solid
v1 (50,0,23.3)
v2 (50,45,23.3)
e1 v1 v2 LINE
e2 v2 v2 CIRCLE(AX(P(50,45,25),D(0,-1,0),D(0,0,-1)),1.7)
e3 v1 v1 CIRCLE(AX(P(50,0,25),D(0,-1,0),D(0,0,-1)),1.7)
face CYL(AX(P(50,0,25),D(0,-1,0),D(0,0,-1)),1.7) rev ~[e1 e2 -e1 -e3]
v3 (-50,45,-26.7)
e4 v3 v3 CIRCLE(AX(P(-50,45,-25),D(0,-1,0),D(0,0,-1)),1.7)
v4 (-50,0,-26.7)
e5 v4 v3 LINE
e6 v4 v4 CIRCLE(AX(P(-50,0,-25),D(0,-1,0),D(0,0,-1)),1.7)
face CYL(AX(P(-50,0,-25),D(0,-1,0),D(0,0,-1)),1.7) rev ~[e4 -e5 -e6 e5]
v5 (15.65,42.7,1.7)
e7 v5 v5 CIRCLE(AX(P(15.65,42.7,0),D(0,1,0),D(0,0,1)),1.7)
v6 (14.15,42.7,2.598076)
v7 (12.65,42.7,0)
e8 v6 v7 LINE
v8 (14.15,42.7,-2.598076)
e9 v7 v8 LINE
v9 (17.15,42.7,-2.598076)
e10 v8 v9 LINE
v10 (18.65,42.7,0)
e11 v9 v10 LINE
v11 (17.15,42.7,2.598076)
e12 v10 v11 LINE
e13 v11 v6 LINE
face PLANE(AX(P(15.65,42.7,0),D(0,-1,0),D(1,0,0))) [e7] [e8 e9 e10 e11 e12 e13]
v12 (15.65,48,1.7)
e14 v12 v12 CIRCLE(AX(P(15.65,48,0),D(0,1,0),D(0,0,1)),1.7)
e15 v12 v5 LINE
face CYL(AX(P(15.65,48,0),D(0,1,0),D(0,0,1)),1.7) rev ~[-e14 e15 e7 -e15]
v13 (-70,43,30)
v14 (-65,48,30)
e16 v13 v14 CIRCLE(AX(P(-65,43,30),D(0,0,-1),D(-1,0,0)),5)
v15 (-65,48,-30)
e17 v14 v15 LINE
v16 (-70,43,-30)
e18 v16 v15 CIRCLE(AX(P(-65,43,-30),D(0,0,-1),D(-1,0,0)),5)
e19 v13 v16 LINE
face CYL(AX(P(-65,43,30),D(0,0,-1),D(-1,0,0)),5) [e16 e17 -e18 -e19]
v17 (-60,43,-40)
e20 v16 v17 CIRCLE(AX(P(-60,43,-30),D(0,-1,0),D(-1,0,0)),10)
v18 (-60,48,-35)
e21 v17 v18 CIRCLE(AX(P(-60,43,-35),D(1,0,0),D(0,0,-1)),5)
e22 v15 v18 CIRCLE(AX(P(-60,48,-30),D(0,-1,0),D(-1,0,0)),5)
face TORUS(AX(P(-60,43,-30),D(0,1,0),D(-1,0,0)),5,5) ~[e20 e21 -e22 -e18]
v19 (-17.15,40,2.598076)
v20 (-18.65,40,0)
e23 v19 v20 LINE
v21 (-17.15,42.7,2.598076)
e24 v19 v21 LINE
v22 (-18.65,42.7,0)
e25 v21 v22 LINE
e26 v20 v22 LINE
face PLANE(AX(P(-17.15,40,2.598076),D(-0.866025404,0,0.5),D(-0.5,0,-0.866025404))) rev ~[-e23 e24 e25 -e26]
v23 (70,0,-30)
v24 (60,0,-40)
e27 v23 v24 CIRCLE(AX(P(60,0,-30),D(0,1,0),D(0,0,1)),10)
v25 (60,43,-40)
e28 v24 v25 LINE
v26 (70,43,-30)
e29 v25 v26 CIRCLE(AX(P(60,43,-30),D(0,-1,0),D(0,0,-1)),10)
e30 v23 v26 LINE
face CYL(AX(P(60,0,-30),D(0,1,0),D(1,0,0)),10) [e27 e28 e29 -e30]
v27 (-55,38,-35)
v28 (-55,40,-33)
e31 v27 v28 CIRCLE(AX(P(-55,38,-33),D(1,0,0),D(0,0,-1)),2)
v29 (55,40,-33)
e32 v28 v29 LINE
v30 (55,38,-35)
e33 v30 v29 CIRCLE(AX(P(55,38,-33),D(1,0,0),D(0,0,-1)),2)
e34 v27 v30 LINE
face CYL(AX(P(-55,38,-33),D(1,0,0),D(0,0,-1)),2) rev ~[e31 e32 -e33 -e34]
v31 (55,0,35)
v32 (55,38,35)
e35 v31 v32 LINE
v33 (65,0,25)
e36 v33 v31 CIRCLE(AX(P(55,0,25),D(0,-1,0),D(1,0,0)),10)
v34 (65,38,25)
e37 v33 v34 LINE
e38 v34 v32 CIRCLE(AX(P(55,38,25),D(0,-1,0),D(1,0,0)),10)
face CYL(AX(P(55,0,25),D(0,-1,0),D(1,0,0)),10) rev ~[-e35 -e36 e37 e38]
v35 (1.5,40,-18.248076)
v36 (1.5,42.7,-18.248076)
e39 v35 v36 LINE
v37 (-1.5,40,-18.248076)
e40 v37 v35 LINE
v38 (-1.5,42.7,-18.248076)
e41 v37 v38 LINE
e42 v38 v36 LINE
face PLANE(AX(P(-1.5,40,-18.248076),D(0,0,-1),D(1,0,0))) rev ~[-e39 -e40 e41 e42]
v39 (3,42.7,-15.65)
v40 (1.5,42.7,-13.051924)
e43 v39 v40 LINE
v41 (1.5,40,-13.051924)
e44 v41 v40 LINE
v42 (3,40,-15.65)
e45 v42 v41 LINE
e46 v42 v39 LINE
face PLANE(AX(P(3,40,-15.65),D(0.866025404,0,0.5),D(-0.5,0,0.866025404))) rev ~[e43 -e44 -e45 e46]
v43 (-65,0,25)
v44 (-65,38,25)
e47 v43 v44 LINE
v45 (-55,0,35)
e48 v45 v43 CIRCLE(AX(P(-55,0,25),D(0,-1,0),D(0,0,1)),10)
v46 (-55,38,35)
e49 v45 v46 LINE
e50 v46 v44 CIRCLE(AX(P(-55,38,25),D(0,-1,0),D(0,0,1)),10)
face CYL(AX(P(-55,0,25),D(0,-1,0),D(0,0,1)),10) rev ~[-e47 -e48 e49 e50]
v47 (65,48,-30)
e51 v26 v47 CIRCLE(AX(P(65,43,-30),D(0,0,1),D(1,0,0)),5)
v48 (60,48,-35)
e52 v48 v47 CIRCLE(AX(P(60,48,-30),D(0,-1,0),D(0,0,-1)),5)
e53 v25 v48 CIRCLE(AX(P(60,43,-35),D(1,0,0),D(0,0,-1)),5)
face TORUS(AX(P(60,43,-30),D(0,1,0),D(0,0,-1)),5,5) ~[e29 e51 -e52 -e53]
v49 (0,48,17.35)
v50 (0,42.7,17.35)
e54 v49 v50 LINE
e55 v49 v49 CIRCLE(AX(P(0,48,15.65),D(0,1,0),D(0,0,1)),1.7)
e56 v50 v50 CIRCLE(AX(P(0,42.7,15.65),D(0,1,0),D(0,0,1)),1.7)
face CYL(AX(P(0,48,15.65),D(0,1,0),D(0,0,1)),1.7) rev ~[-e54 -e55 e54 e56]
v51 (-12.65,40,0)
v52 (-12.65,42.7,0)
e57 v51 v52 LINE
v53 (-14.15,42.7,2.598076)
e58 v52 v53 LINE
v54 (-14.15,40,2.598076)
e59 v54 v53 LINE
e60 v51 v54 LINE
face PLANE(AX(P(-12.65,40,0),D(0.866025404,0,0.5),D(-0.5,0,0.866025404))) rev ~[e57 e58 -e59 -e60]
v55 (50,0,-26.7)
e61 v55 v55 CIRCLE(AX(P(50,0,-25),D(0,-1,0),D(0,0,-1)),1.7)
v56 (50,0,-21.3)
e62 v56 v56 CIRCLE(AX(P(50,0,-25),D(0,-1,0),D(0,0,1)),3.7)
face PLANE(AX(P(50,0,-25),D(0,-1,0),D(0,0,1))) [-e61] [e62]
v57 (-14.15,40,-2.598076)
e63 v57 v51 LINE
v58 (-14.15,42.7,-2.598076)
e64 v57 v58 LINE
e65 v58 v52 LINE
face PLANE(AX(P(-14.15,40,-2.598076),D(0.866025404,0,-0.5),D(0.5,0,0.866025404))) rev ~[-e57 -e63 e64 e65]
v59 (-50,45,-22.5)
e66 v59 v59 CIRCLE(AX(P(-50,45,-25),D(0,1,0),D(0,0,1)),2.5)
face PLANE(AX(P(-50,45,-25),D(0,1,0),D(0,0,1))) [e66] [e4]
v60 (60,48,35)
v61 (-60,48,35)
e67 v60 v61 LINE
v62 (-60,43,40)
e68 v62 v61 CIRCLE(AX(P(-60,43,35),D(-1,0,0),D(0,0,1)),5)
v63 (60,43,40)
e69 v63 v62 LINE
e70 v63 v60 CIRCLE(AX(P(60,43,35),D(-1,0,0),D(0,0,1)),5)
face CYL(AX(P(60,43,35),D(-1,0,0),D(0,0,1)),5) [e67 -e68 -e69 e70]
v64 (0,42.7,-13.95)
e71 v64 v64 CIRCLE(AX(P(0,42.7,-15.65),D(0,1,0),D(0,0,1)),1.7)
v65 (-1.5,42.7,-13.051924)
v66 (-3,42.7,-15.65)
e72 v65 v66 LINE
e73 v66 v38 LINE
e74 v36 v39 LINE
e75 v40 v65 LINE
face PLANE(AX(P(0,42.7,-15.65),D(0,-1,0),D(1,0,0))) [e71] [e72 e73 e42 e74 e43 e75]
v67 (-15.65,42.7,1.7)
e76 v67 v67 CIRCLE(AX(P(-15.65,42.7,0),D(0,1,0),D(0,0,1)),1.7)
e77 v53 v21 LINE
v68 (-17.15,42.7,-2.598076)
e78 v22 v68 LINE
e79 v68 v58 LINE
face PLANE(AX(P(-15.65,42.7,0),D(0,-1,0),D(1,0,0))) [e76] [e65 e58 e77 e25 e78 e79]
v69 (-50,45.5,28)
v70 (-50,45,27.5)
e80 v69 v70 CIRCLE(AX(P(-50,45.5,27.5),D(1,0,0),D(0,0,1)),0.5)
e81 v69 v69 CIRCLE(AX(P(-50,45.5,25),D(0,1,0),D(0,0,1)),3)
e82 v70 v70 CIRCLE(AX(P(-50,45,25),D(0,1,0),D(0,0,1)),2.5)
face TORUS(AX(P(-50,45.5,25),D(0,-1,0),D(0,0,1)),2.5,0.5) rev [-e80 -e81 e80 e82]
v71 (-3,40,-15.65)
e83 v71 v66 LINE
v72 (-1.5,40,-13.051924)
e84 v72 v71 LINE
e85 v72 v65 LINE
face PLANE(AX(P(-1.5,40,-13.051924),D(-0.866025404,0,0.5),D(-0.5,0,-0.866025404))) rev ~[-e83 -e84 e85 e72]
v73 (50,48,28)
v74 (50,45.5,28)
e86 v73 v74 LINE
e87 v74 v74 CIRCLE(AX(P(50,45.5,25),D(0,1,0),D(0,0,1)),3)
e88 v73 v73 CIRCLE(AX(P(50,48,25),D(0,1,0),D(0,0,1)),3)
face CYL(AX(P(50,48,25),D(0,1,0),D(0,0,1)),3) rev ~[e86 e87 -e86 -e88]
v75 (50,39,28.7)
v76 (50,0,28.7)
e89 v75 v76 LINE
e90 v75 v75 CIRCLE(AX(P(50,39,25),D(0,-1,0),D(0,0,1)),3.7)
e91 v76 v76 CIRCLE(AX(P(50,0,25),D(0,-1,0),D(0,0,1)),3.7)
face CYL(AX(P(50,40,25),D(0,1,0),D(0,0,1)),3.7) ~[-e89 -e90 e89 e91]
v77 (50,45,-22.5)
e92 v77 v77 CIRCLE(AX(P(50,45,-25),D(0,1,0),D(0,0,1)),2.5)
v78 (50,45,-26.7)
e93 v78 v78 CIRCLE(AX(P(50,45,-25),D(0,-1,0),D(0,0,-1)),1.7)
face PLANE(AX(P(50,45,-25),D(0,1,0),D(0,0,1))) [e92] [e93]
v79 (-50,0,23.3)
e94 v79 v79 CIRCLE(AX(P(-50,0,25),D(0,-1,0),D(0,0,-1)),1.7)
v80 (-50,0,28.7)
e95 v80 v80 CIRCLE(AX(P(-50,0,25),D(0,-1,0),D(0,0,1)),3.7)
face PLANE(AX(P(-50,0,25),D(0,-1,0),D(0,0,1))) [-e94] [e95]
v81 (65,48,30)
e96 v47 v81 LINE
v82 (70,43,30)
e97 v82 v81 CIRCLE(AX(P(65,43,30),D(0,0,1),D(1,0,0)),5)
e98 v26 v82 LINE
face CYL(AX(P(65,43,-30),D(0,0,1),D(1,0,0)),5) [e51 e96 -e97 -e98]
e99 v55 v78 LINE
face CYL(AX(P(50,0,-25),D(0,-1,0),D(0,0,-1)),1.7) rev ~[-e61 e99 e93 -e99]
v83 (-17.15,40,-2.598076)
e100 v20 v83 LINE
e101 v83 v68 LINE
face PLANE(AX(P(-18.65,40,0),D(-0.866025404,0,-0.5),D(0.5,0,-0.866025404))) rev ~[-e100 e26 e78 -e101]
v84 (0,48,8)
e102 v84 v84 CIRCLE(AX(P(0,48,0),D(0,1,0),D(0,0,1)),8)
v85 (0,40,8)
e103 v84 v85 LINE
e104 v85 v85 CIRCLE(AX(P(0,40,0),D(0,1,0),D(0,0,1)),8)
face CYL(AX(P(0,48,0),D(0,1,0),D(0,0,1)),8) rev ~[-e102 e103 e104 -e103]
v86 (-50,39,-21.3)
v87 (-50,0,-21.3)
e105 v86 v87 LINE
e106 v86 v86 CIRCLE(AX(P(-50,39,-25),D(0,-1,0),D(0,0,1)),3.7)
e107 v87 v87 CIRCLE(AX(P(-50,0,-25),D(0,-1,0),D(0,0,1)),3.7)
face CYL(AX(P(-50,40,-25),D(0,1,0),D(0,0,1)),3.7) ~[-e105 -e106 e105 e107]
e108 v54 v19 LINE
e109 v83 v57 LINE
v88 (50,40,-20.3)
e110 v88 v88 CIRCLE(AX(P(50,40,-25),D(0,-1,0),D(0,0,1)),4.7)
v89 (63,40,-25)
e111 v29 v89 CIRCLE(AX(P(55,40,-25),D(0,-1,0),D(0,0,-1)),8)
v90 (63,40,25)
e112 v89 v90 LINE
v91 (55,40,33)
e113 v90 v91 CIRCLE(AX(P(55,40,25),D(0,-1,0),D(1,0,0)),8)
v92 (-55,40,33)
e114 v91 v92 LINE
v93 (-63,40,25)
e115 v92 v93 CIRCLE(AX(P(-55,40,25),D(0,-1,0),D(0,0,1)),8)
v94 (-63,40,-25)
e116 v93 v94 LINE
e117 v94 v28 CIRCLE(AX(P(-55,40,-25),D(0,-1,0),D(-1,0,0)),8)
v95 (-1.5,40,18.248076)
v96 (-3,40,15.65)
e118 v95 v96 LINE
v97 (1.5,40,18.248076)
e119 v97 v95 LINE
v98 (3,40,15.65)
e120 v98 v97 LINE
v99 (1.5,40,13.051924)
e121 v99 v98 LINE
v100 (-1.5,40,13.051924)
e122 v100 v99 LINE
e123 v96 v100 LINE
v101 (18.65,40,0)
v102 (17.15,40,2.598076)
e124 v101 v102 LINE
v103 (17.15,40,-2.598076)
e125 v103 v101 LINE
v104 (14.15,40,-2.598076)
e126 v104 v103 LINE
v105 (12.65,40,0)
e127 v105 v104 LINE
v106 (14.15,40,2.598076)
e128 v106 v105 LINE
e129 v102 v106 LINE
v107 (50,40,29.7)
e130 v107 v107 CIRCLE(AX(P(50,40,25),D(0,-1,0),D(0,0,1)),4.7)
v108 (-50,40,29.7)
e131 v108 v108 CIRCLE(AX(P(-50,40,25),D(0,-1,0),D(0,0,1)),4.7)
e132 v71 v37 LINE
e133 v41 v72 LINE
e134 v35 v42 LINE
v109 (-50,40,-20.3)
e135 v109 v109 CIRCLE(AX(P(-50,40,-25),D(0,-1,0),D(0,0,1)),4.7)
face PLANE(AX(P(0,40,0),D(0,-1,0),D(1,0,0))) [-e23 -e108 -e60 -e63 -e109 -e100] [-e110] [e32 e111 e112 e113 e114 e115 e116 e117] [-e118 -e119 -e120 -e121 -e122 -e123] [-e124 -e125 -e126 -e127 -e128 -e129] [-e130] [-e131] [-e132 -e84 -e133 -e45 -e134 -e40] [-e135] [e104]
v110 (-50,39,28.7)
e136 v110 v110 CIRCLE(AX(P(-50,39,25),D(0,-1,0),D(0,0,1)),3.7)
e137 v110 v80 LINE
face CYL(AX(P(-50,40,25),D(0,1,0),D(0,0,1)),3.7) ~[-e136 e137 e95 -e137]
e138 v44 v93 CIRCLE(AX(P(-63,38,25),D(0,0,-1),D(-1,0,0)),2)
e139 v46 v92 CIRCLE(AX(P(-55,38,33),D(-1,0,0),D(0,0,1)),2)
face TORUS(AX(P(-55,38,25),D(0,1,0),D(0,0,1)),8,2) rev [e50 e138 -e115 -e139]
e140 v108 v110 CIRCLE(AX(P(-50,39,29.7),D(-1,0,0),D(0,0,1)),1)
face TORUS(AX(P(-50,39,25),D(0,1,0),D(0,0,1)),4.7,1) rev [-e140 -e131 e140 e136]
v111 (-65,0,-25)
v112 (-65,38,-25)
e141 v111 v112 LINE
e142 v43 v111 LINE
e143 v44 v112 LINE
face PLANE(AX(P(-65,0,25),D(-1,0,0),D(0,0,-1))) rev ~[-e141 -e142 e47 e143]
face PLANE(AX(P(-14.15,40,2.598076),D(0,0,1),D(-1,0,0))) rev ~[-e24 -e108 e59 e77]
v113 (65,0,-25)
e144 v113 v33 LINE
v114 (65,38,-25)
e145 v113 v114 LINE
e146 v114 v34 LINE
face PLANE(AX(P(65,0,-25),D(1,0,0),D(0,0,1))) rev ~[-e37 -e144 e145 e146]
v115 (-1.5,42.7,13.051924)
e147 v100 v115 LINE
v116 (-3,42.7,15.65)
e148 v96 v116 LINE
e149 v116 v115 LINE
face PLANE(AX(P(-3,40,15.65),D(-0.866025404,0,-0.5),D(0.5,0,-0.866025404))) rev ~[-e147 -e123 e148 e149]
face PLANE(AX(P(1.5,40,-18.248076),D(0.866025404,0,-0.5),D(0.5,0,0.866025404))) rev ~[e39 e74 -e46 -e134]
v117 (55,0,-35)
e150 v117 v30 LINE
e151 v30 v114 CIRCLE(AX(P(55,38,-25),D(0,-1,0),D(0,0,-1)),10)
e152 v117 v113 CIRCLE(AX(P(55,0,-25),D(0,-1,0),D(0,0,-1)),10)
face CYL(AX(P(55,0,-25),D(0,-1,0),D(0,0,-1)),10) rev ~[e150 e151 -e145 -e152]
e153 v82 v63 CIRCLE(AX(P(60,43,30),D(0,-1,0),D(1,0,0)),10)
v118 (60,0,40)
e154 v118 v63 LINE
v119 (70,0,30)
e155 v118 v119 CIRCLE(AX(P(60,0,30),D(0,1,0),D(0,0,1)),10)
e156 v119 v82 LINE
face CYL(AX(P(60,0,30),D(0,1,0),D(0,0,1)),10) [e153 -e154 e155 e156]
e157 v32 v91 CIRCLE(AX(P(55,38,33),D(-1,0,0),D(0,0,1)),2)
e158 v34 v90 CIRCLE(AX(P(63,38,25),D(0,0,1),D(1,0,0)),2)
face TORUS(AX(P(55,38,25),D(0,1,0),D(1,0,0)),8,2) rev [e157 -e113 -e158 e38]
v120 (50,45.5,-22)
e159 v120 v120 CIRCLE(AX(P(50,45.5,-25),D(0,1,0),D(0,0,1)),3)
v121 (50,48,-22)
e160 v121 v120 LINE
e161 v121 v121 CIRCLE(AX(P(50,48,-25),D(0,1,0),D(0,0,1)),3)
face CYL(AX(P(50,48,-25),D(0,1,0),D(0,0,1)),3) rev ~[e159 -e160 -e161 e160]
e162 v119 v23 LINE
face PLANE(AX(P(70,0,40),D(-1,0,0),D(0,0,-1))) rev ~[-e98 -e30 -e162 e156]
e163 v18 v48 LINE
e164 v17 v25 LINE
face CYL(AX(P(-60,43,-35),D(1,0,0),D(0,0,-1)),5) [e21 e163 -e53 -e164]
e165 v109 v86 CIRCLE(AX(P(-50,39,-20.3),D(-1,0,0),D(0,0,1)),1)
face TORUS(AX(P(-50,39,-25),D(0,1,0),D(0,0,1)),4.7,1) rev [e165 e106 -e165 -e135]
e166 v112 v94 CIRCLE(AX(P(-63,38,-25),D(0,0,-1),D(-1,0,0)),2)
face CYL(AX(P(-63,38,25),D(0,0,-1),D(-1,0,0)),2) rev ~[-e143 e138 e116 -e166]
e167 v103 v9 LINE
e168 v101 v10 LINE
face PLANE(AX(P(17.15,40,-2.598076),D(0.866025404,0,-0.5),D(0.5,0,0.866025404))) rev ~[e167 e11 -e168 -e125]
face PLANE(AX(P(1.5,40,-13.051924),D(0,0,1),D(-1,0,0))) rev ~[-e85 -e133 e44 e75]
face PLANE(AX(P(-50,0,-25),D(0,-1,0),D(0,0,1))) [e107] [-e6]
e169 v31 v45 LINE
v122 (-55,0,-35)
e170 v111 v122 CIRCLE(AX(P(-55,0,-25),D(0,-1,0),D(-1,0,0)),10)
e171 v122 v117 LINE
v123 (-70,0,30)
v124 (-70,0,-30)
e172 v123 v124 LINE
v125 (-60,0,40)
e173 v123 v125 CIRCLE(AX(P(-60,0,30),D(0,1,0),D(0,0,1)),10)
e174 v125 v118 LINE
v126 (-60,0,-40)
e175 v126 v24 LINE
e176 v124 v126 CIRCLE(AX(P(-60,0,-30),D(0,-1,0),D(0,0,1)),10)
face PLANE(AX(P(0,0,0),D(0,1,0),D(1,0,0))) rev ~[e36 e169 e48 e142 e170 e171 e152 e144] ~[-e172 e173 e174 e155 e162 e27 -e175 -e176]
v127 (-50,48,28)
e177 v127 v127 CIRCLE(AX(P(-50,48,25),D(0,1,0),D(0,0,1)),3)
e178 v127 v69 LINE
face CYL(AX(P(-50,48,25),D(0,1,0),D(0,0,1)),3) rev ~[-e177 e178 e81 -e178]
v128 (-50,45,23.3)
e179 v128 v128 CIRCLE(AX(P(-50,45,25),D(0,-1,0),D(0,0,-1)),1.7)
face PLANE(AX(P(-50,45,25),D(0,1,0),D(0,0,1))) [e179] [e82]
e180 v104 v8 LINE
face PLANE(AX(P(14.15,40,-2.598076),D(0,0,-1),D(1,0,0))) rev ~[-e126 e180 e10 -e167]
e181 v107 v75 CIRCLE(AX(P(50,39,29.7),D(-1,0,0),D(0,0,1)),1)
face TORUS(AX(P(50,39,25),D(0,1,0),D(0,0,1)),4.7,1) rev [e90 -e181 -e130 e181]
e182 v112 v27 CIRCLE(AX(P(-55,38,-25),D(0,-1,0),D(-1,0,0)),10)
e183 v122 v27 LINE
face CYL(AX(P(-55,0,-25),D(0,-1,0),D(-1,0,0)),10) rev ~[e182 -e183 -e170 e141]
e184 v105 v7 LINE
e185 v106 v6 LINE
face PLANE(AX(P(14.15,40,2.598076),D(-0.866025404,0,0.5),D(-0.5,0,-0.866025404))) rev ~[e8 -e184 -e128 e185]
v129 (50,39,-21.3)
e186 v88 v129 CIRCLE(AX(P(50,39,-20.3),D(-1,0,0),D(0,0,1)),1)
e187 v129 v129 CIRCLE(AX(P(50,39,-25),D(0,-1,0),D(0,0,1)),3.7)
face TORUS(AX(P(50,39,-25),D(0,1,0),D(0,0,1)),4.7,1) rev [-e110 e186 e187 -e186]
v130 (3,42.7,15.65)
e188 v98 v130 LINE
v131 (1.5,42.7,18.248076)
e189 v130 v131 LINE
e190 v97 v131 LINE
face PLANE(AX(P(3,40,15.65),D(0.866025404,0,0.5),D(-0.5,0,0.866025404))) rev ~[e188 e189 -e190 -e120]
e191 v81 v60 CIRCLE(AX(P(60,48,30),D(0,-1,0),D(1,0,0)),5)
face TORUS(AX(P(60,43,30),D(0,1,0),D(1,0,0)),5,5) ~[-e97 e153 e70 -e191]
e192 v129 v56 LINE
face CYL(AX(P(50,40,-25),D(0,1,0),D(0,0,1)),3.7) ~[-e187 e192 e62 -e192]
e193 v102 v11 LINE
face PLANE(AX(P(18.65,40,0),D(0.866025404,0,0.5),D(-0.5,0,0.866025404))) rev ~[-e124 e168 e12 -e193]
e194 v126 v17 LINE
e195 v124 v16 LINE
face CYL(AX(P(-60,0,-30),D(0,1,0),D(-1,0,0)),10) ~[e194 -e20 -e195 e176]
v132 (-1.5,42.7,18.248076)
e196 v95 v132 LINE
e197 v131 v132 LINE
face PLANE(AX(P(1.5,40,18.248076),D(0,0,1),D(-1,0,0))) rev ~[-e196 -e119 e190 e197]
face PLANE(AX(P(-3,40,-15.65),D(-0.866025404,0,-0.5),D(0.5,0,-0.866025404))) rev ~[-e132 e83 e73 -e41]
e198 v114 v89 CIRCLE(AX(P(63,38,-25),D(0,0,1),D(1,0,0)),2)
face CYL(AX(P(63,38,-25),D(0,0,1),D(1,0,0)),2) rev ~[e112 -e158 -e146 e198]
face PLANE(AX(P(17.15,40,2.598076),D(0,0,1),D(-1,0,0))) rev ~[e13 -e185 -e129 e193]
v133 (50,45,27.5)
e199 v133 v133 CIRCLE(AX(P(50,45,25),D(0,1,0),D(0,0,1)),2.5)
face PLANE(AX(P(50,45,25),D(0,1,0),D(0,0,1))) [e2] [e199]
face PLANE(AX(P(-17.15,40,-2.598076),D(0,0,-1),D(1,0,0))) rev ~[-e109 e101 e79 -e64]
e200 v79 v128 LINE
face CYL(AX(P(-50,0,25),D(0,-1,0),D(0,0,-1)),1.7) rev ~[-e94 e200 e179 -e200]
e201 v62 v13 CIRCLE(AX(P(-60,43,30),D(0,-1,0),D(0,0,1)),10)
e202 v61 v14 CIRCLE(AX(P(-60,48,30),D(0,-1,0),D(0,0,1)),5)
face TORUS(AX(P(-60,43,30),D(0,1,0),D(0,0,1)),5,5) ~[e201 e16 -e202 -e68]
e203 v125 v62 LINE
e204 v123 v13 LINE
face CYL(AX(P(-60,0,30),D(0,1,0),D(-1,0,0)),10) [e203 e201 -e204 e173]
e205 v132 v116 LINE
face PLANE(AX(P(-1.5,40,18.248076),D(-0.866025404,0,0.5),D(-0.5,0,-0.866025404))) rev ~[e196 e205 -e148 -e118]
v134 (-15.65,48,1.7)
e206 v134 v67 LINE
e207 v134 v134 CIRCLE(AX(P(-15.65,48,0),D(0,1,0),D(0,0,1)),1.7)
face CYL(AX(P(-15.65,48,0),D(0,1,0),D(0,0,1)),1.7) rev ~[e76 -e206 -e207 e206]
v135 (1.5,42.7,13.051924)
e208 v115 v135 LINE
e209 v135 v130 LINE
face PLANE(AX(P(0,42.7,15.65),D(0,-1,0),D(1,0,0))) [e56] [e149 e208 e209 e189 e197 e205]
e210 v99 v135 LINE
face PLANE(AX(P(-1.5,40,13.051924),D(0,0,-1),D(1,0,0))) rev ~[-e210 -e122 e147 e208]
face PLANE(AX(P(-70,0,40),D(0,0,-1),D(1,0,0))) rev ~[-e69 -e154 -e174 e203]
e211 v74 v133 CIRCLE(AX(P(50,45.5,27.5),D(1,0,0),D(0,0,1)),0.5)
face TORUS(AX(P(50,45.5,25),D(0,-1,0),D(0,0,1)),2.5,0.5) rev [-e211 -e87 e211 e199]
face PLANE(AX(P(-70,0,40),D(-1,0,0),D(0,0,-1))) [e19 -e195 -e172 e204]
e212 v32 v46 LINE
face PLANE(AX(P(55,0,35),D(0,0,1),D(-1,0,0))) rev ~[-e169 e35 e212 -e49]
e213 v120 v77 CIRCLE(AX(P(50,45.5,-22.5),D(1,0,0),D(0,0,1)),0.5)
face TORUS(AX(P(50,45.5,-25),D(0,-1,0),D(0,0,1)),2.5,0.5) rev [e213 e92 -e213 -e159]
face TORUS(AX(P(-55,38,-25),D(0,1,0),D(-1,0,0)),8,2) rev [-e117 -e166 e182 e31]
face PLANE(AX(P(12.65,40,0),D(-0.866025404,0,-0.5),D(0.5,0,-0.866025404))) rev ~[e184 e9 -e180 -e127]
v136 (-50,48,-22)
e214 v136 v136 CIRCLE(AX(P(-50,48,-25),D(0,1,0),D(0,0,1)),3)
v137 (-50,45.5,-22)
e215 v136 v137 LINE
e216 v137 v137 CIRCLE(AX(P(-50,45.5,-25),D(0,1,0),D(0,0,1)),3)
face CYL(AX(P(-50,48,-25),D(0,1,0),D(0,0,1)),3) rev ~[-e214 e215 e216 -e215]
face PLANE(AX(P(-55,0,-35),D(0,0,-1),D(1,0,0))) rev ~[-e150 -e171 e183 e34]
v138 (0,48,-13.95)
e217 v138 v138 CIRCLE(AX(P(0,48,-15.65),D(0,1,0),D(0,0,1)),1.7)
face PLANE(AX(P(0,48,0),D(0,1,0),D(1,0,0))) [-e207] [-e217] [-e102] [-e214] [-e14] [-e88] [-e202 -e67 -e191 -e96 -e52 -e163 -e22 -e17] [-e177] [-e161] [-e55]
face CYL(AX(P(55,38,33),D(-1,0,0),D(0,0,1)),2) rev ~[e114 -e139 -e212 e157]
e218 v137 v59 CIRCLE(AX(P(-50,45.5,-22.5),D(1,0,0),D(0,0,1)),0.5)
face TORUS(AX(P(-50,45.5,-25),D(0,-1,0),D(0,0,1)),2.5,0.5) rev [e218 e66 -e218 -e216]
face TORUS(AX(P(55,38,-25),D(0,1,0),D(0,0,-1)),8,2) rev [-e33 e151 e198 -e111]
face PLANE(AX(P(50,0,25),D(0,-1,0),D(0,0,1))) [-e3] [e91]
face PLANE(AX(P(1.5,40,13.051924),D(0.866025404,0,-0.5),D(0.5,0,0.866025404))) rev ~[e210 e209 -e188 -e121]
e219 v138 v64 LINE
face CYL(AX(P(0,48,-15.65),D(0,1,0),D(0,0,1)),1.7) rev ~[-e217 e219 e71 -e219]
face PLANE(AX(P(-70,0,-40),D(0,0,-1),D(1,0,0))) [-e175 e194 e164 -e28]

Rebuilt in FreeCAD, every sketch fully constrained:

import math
import FreeCAD as App
import Part
import Sketcher
Q = App.Units.Quantity


def edges_at(feature, points):
    """Names of the edges that pass closest to the given points."""
    edges = feature.Shape.Edges
    near = lambda p: min(range(len(edges)), key=lambda i: edges[i].distToShape(Part.Vertex(*p))[0])
    return sorted({f"Edge{near(p) + 1}" for p in points})

doc = App.newDocument("Part")
params = doc.addObject("Spreadsheet::Sheet", "Params")
for row, (alias, value) in enumerate([
    ("sketch1_width", "140 mm"),
    ("sketch1_height", "80 mm"),
    ("pad1_length", "48 mm"),
    ("fillet_radius", "10 mm"),
    ("fillet2_radius", "5 mm"),
    ("sketch2_radius", "10 mm"),
    ("sketch2_width", "110 mm"),
    ("sketch2_height", "50 mm"),
    ("pocket1_length", "40 mm"),
    ("sketch3_diameter", "7.4 mm"),
    ("pad2_length", "40 mm"),
    ("sketch4_diameter", "3.4 mm"),
    ("sketch5_diameter", "6 mm"),
    ("pocket3_length", "3 mm"),
    ("fillet3_radius", "0.5 mm"),
    ("fillet4_radius", "2 mm"),
    ("fillet5_radius", "1 mm"),
    ("sketch6_diameter", "16 mm"),
    ("sketch7_diameter", "3.4 mm"),
    ("sketch8_width", "3 mm"),
    ("sketch8_length", "3 mm"),
    ("pocket6_length", "2.7 mm"),
], start=1):
    params.set(f"A{row}", alias)
    params.set(f"B{row}", "=" + value)
    params.setAlias(f"B{row}", alias)

body = doc.addObject("PartDesign::Body", "Body")

# Sketch on XZ plane
sketch1 = doc.addObject("Sketcher::SketchObject", "Sketch")
body.addObject(sketch1)
sketch1.AttachmentSupport = (doc.XZ_Plane, [""])
sketch1.MapMode = "FlatFace"
sketch1.addGeometry(Part.LineSegment(App.Vector(-70, -40, 0), App.Vector(-70, 40, 0)), False)
sketch1.addGeometry(Part.LineSegment(App.Vector(-70, 40, 0), App.Vector(70, 40, 0)), False)
sketch1.addGeometry(Part.LineSegment(App.Vector(70, 40, 0), App.Vector(70, -40, 0)), False)
sketch1.addGeometry(Part.LineSegment(App.Vector(70, -40, 0), App.Vector(-70, -40, 0)), False)
sketch1.addConstraint(Sketcher.Constraint("Coincident", 0, 2, 1, 1))
sketch1.addConstraint(Sketcher.Constraint("Coincident", 1, 2, 2, 1))
sketch1.addConstraint(Sketcher.Constraint("Coincident", 2, 2, 3, 1))
sketch1.addConstraint(Sketcher.Constraint("Coincident", 3, 2, 0, 1))
sketch1.addConstraint(Sketcher.Constraint("Vertical", 0))
sketch1.addConstraint(Sketcher.Constraint("Horizontal", 1))
sketch1.addConstraint(Sketcher.Constraint("Vertical", 2))
sketch1.addConstraint(Sketcher.Constraint("Horizontal", 3))
sketch1.addConstraint(Sketcher.Constraint("Symmetric", 0, 2, 2, 2, -1, 1))
sketch1.addConstraint(Sketcher.Constraint("DistanceX", 1, 1, 1, 2, 140.0))
sketch1.addConstraint(Sketcher.Constraint("DistanceY", 0, 1, 0, 2, 80.0))
sketch1.setExpression("Constraints[9]", "Params.sketch1_width")
sketch1.setExpression("Constraints[10]", "Params.sketch1_height")
pad1 = doc.addObject("PartDesign::Pad", "Pad")
body.addObject(pad1)
pad1.Profile = sketch1
pad1.setExpression("Length", "Params.pad1_length")
pad1.Reversed = True
doc.recompute()

fillet = doc.addObject("PartDesign::Fillet", "Fillet")
body.addObject(fillet)
fillet.Base = (pad1, edges_at(pad1, [
    (70, 24, 40),
    (-70, 24, 40),
    (-70, 24, -40),
    (70, 24, -40),
]))
fillet.setExpression("Radius", "Params.fillet_radius")
doc.recompute()

fillet2 = doc.addObject("PartDesign::Fillet", "Fillet001")
body.addObject(fillet2)
fillet2.Base = (fillet, edges_at(fillet, [
    (-70, 48, 0),
    (0, 48, -40),
    (70, 48, 0),
    (0, 48, 40),
    (-67.071, 48, 37.071),
    (67.071, 48, 37.071),
    (67.071, 48, -37.071),
    (-67.071, 48, -37.071),
]))
fillet2.setExpression("Radius", "Params.fillet2_radius")

# Sketch on XZ plane
sketch2 = doc.addObject("Sketcher::SketchObject", "Sketch001")
body.addObject(sketch2)
sketch2.AttachmentSupport = (doc.XZ_Plane, [""])
sketch2.MapMode = "FlatFace"
sketch2.addGeometry(Part.LineSegment(App.Vector(-55, -35, 0), App.Vector(55, -35, 0)), False)
sketch2.addGeometry(Part.ArcOfCircle(Part.Circle(App.Vector(55, -25, 0), App.Vector(0, 0, 1), 10), math.radians(-90), math.radians(0)), False)
sketch2.addGeometry(Part.LineSegment(App.Vector(65, -25, 0), App.Vector(65, 25, 0)), False)
sketch2.addGeometry(Part.ArcOfCircle(Part.Circle(App.Vector(55, 25, 0), App.Vector(0, 0, 1), 10), math.radians(0), math.radians(90)), False)
sketch2.addGeometry(Part.LineSegment(App.Vector(55, 35, 0), App.Vector(-55, 35, 0)), False)
sketch2.addGeometry(Part.ArcOfCircle(Part.Circle(App.Vector(-55, 25, 0), App.Vector(0, 0, 1), 10), math.radians(90), math.radians(180)), False)
sketch2.addGeometry(Part.LineSegment(App.Vector(-65, 25, 0), App.Vector(-65, -25, 0)), False)
sketch2.addGeometry(Part.ArcOfCircle(Part.Circle(App.Vector(-55, -25, 0), App.Vector(0, 0, 1), 10), math.radians(180), math.radians(270)), False)
sketch2.addConstraint(Sketcher.Constraint("Tangent", 0, 2, 1, 1))
sketch2.addConstraint(Sketcher.Constraint("Tangent", 1, 2, 2, 1))
sketch2.addConstraint(Sketcher.Constraint("Tangent", 2, 2, 3, 1))
sketch2.addConstraint(Sketcher.Constraint("Tangent", 3, 2, 4, 1))
sketch2.addConstraint(Sketcher.Constraint("Tangent", 4, 2, 5, 1))
sketch2.addConstraint(Sketcher.Constraint("Tangent", 5, 2, 6, 1))
sketch2.addConstraint(Sketcher.Constraint("Tangent", 6, 2, 7, 1))
sketch2.addConstraint(Sketcher.Constraint("Tangent", 7, 2, 0, 1))
sketch2.addConstraint(Sketcher.Constraint("Horizontal", 0))
sketch2.addConstraint(Sketcher.Constraint("Vertical", 2))
sketch2.addConstraint(Sketcher.Constraint("Horizontal", 4))
sketch2.addConstraint(Sketcher.Constraint("Vertical", 6))
sketch2.addConstraint(Sketcher.Constraint("Equal", 1, 3))
sketch2.addConstraint(Sketcher.Constraint("Equal", 3, 5))
sketch2.addConstraint(Sketcher.Constraint("Equal", 5, 7))
sketch2.addConstraint(Sketcher.Constraint("Symmetric", 1, 3, 5, 3, -1, 1))
sketch2.addConstraint(Sketcher.Constraint("Radius", 1, 10.0))
sketch2.addConstraint(Sketcher.Constraint("DistanceX", 0, 1, 0, 2, 110.0))
sketch2.addConstraint(Sketcher.Constraint("DistanceY", 2, 1, 2, 2, 50.0))
sketch2.setExpression("Constraints[16]", "Params.sketch2_radius")
sketch2.setExpression("Constraints[17]", "Params.sketch2_width")
sketch2.setExpression("Constraints[18]", "Params.sketch2_height")
pocket1 = doc.addObject("PartDesign::Pocket", "Pocket")
body.addObject(pocket1)
pocket1.Profile = sketch2
pocket1.setExpression("Length", "Params.pocket1_length")

# Sketch on XZ plane
sketch3 = doc.addObject("Sketcher::SketchObject", "Sketch002")
body.addObject(sketch3)
sketch3.AttachmentSupport = (doc.XZ_Plane, [""])
sketch3.MapMode = "FlatFace"
sketch3.AttachmentOffset = App.Placement(App.Vector(0, 0, -40), App.Rotation())
sketch3.addGeometry(Part.Circle(App.Vector(-50, 25, 0), App.Vector(0, 0, 1), 3.7), False)
sketch3.addGeometry(Part.Circle(App.Vector(50, 25, 0), App.Vector(0, 0, 1), 3.7), False)
sketch3.addGeometry(Part.Circle(App.Vector(-50, -25, 0), App.Vector(0, 0, 1), 3.7), False)
sketch3.addGeometry(Part.Circle(App.Vector(50, -25, 0), App.Vector(0, 0, 1), 3.7), False)
sketch3.addConstraint(Sketcher.Constraint("Equal", 0, 1))
sketch3.addConstraint(Sketcher.Constraint("Equal", 1, 2))
sketch3.addConstraint(Sketcher.Constraint("Equal", 2, 3))
sketch3.addConstraint(Sketcher.Constraint("Symmetric", 1, 3, 2, 3, -1, 1))
sketch3.addConstraint(Sketcher.Constraint("Symmetric", 0, 3, 3, 3, -1, 1))
sketch3.addConstraint(Sketcher.Constraint("Symmetric", 0, 3, 1, 3, -2))
sketch3.addConstraint(Sketcher.Constraint("Diameter", 0, 7.4))
sketch3.addConstraint(Sketcher.Constraint("DistanceX", 0, 3, -1, 1, 50.0))
sketch3.addConstraint(Sketcher.Constraint("DistanceY", -1, 1, 0, 3, 25.0))
sketch3.setExpression("Constraints[6]", "Params.sketch3_diameter")
pad2 = doc.addObject("PartDesign::Pad", "Pad001")
body.addObject(pad2)
pad2.Profile = sketch3
pad2.setExpression("Length", "Params.pad2_length")

# Sketch on XZ plane
sketch4 = doc.addObject("Sketcher::SketchObject", "Sketch003")
body.addObject(sketch4)
sketch4.AttachmentSupport = (doc.XZ_Plane, [""])
sketch4.MapMode = "FlatFace"
sketch4.addGeometry(Part.Circle(App.Vector(-50, 25, 0), App.Vector(0, 0, 1), 1.7), False)
sketch4.addGeometry(Part.Circle(App.Vector(50, 25, 0), App.Vector(0, 0, 1), 1.7), False)
sketch4.addGeometry(Part.Circle(App.Vector(-50, -25, 0), App.Vector(0, 0, 1), 1.7), False)
sketch4.addGeometry(Part.Circle(App.Vector(50, -25, 0), App.Vector(0, 0, 1), 1.7), False)
sketch4.addConstraint(Sketcher.Constraint("Equal", 0, 1))
sketch4.addConstraint(Sketcher.Constraint("Equal", 1, 2))
sketch4.addConstraint(Sketcher.Constraint("Equal", 2, 3))
sketch4.addConstraint(Sketcher.Constraint("Symmetric", 1, 3, 2, 3, -1, 1))
sketch4.addConstraint(Sketcher.Constraint("Symmetric", 0, 3, 3, 3, -1, 1))
sketch4.addConstraint(Sketcher.Constraint("Symmetric", 0, 3, 1, 3, -2))
sketch4.addConstraint(Sketcher.Constraint("Diameter", 0, 3.4))
sketch4.addConstraint(Sketcher.Constraint("DistanceX", 0, 3, -1, 1, 50.0))
sketch4.addConstraint(Sketcher.Constraint("DistanceY", -1, 1, 0, 3, 25.0))
sketch4.setExpression("Constraints[6]", "Params.sketch4_diameter")
pocket2 = doc.addObject("PartDesign::Pocket", "Pocket001")
body.addObject(pocket2)
pocket2.Profile = sketch4
pocket2.Type = "ThroughAll"

# Sketch on XZ plane
sketch5 = doc.addObject("Sketcher::SketchObject", "Sketch004")
body.addObject(sketch5)
sketch5.AttachmentSupport = (doc.XZ_Plane, [""])
sketch5.MapMode = "FlatFace"
sketch5.AttachmentOffset = App.Placement(App.Vector(0, 0, -48), App.Rotation())
sketch5.addGeometry(Part.Circle(App.Vector(-50, -25, 0), App.Vector(0, 0, 1), 3), False)
sketch5.addGeometry(Part.Circle(App.Vector(50, -25, 0), App.Vector(0, 0, 1), 3), False)
sketch5.addGeometry(Part.Circle(App.Vector(-50, 25, 0), App.Vector(0, 0, 1), 3), False)
sketch5.addGeometry(Part.Circle(App.Vector(50, 25, 0), App.Vector(0, 0, 1), 3), False)
sketch5.addConstraint(Sketcher.Constraint("Equal", 0, 1))
sketch5.addConstraint(Sketcher.Constraint("Equal", 1, 2))
sketch5.addConstraint(Sketcher.Constraint("Equal", 2, 3))
sketch5.addConstraint(Sketcher.Constraint("Symmetric", 1, 3, 2, 3, -1, 1))
sketch5.addConstraint(Sketcher.Constraint("Symmetric", 0, 3, 3, 3, -1, 1))
sketch5.addConstraint(Sketcher.Constraint("Symmetric", 0, 3, 1, 3, -2))
sketch5.addConstraint(Sketcher.Constraint("Diameter", 0, 6.0))
sketch5.addConstraint(Sketcher.Constraint("DistanceX", 0, 3, -1, 1, 50.0))
sketch5.addConstraint(Sketcher.Constraint("DistanceY", 0, 3, -1, 1, 25.0))
sketch5.setExpression("Constraints[6]", "Params.sketch5_diameter")
pocket3 = doc.addObject("PartDesign::Pocket", "Pocket002")
body.addObject(pocket3)
pocket3.Profile = sketch5
pocket3.setExpression("Length", "Params.pocket3_length")
pocket3.Reversed = True
doc.recompute()

fillet3 = doc.addObject("PartDesign::Fillet", "Fillet002")
body.addObject(fillet3)
fillet3.Base = (pocket3, edges_at(pocket3, [
    (50, 45, -28),
    (-50, 45, 22),
    (50, 45, 22),
    (-50, 45, -28),
]))
fillet3.setExpression("Radius", "Params.fillet3_radius")
doc.recompute()

fillet4 = doc.addObject("PartDesign::Fillet", "Fillet003")
body.addObject(fillet4)
fillet4.Base = (fillet3, edges_at(fillet3, [
    (-62.071, 40, 32.071),
    (0, 40, 35),
    (62.071, 40, 32.071),
    (65, 40, 0),
    (62.071, 40, -32.071),
    (0, 40, -35),
    (-62.071, 40, -32.071),
    (-65, 40, 0),
]))
fillet4.setExpression("Radius", "Params.fillet4_radius")
doc.recompute()

fillet5 = doc.addObject("PartDesign::Fillet", "Fillet004")
body.addObject(fillet5)
fillet5.Base = (fillet4, edges_at(fillet4, [
    (-50, 40, 21.3),
    (50, 40, -28.7),
    (-50, 40, -28.7),
    (50, 40, 21.3),
]))
fillet5.setExpression("Radius", "Params.fillet5_radius")

# Sketch on XZ plane
sketch6 = doc.addObject("Sketcher::SketchObject", "Sketch005")
body.addObject(sketch6)
sketch6.AttachmentSupport = (doc.XZ_Plane, [""])
sketch6.MapMode = "FlatFace"
sketch6.AttachmentOffset = App.Placement(App.Vector(0, 0, -48), App.Rotation())
sketch6.addGeometry(Part.Circle(App.Vector(0, 0, 0), App.Vector(0, 0, 1), 8), False)
sketch6.addConstraint(Sketcher.Constraint("Coincident", 0, 3, -1, 1))
sketch6.addConstraint(Sketcher.Constraint("Diameter", 0, 16.0))
sketch6.setExpression("Constraints[1]", "Params.sketch6_diameter")
pocket4 = doc.addObject("PartDesign::Pocket", "Pocket003")
body.addObject(pocket4)
pocket4.Profile = sketch6
pocket4.Type = "ThroughAll"
pocket4.Reversed = True

# Sketch on XZ plane
sketch7 = doc.addObject("Sketcher::SketchObject", "Sketch006")
body.addObject(sketch7)
sketch7.AttachmentSupport = (doc.XZ_Plane, [""])
sketch7.MapMode = "FlatFace"
sketch7.AttachmentOffset = App.Placement(App.Vector(0, 0, -48), App.Rotation())
sketch7.addGeometry(Part.Circle(App.Vector(0, -15.7, 0), App.Vector(0, 0, 1), 1.7), False)
sketch7.addGeometry(Part.Circle(App.Vector(15.7, 0, 0), App.Vector(0, 0, 1), 1.7), False)
sketch7.addGeometry(Part.Circle(App.Vector(0, 15.7, 0), App.Vector(0, 0, 1), 1.7), False)
sketch7.addGeometry(Part.Circle(App.Vector(-15.7, 0, 0), App.Vector(0, 0, 1), 1.7), False)
sketch7.addConstraint(Sketcher.Constraint("Equal", 0, 1))
sketch7.addConstraint(Sketcher.Constraint("Equal", 1, 2))
sketch7.addConstraint(Sketcher.Constraint("Equal", 2, 3))
sketch7.addConstraint(Sketcher.Constraint("Symmetric", 0, 3, 2, 3, -1, 1))
sketch7.addConstraint(Sketcher.Constraint("Symmetric", 1, 3, 3, 3, -1, 1))
sketch7.addConstraint(Sketcher.Constraint("PointOnObject", 0, 3, -2))
sketch7.addConstraint(Sketcher.Constraint("PointOnObject", 1, 3, -1))
sketch7.addConstraint(Sketcher.Constraint("Diameter", 0, 3.4))
sketch7.addConstraint(Sketcher.Constraint("DistanceY", 0, 3, 2, 3, 31.3))
sketch7.addConstraint(Sketcher.Constraint("DistanceX", 3, 3, 1, 3, 31.3))
sketch7.setExpression("Constraints[7]", "Params.sketch7_diameter")
pocket5 = doc.addObject("PartDesign::Pocket", "Pocket004")
body.addObject(pocket5)
pocket5.Profile = sketch7
pocket5.Type = "ThroughAll"
pocket5.Reversed = True

# Sketch on XZ plane
sketch8 = doc.addObject("Sketcher::SketchObject", "Sketch007")
body.addObject(sketch8)
sketch8.AttachmentSupport = (doc.XZ_Plane, [""])
sketch8.MapMode = "FlatFace"
sketch8.AttachmentOffset = App.Placement(App.Vector(0, 0, -40), App.Rotation())
sketch8.addGeometry(Part.LineSegment(App.Vector(3, 15.7, 0), App.Vector(1.5, 18.2, 0)), False)
sketch8.addGeometry(Part.LineSegment(App.Vector(1.5, 18.2, 0), App.Vector(-1.5, 18.2, 0)), False)
sketch8.addGeometry(Part.LineSegment(App.Vector(-1.5, 18.2, 0), App.Vector(-3, 15.7, 0)), False)
sketch8.addGeometry(Part.LineSegment(App.Vector(-3, 15.7, 0), App.Vector(-1.5, 13.1, 0)), False)
sketch8.addGeometry(Part.LineSegment(App.Vector(-1.5, 13.1, 0), App.Vector(1.5, 13.1, 0)), False)
sketch8.addGeometry(Part.LineSegment(App.Vector(1.5, 13.1, 0), App.Vector(3, 15.7, 0)), False)
sketch8.addGeometry(Part.LineSegment(App.Vector(18.6, 0, 0), App.Vector(17.1, 2.6, 0)), False)
sketch8.addGeometry(Part.LineSegment(App.Vector(17.1, 2.6, 0), App.Vector(14.2, 2.6, 0)), False)
sketch8.addGeometry(Part.LineSegment(App.Vector(14.2, 2.6, 0), App.Vector(12.7, 0, 0)), False)
sketch8.addGeometry(Part.LineSegment(App.Vector(12.7, 0, 0), App.Vector(14.2, -2.6, 0)), False)
sketch8.addGeometry(Part.LineSegment(App.Vector(14.2, -2.6, 0), App.Vector(17.1, -2.6, 0)), False)
sketch8.addGeometry(Part.LineSegment(App.Vector(17.1, -2.6, 0), App.Vector(18.6, 0, 0)), False)
sketch8.addGeometry(Part.LineSegment(App.Vector(3, -15.7, 0), App.Vector(1.5, -13.1, 0)), False)
sketch8.addGeometry(Part.LineSegment(App.Vector(1.5, -13.1, 0), App.Vector(-1.5, -13.1, 0)), False)
sketch8.addGeometry(Part.LineSegment(App.Vector(-1.5, -13.1, 0), App.Vector(-3, -15.7, 0)), False)
sketch8.addGeometry(Part.LineSegment(App.Vector(-3, -15.7, 0), App.Vector(-1.5, -18.2, 0)), False)
sketch8.addGeometry(Part.LineSegment(App.Vector(-1.5, -18.2, 0), App.Vector(1.5, -18.2, 0)), False)
sketch8.addGeometry(Part.LineSegment(App.Vector(1.5, -18.2, 0), App.Vector(3, -15.7, 0)), False)
sketch8.addGeometry(Part.LineSegment(App.Vector(-12.7, 0, 0), App.Vector(-14.2, 2.6, 0)), False)
sketch8.addGeometry(Part.LineSegment(App.Vector(-14.2, 2.6, 0), App.Vector(-17.1, 2.6, 0)), False)
sketch8.addGeometry(Part.LineSegment(App.Vector(-17.1, 2.6, 0), App.Vector(-18.6, 0, 0)), False)
sketch8.addGeometry(Part.LineSegment(App.Vector(-18.6, 0, 0), App.Vector(-17.1, -2.6, 0)), False)
sketch8.addGeometry(Part.LineSegment(App.Vector(-17.1, -2.6, 0), App.Vector(-14.2, -2.6, 0)), False)
sketch8.addGeometry(Part.LineSegment(App.Vector(-14.2, -2.6, 0), App.Vector(-12.7, 0, 0)), False)
sketch8.addConstraint(Sketcher.Constraint("Coincident", 0, 2, 1, 1))
sketch8.addConstraint(Sketcher.Constraint("Coincident", 1, 2, 2, 1))
sketch8.addConstraint(Sketcher.Constraint("Coincident", 2, 2, 3, 1))
sketch8.addConstraint(Sketcher.Constraint("Coincident", 3, 2, 4, 1))
sketch8.addConstraint(Sketcher.Constraint("Coincident", 4, 2, 5, 1))
sketch8.addConstraint(Sketcher.Constraint("Coincident", 5, 2, 0, 1))
sketch8.addConstraint(Sketcher.Constraint("Coincident", 6, 2, 7, 1))
sketch8.addConstraint(Sketcher.Constraint("Coincident", 7, 2, 8, 1))
sketch8.addConstraint(Sketcher.Constraint("Coincident", 8, 2, 9, 1))
sketch8.addConstraint(Sketcher.Constraint("Coincident", 9, 2, 10, 1))
sketch8.addConstraint(Sketcher.Constraint("Coincident", 10, 2, 11, 1))
sketch8.addConstraint(Sketcher.Constraint("Coincident", 11, 2, 6, 1))
sketch8.addConstraint(Sketcher.Constraint("Coincident", 12, 2, 13, 1))
sketch8.addConstraint(Sketcher.Constraint("Coincident", 13, 2, 14, 1))
sketch8.addConstraint(Sketcher.Constraint("Coincident", 14, 2, 15, 1))
sketch8.addConstraint(Sketcher.Constraint("Coincident", 15, 2, 16, 1))
sketch8.addConstraint(Sketcher.Constraint("Coincident", 16, 2, 17, 1))
sketch8.addConstraint(Sketcher.Constraint("Coincident", 17, 2, 12, 1))
sketch8.addConstraint(Sketcher.Constraint("Coincident", 18, 2, 19, 1))
sketch8.addConstraint(Sketcher.Constraint("Coincident", 19, 2, 20, 1))
sketch8.addConstraint(Sketcher.Constraint("Coincident", 20, 2, 21, 1))
sketch8.addConstraint(Sketcher.Constraint("Coincident", 21, 2, 22, 1))
sketch8.addConstraint(Sketcher.Constraint("Coincident", 22, 2, 23, 1))
sketch8.addConstraint(Sketcher.Constraint("Coincident", 23, 2, 18, 1))
sketch8.addConstraint(Sketcher.Constraint("Horizontal", 1))
sketch8.addConstraint(Sketcher.Constraint("Horizontal", 4))
sketch8.addConstraint(Sketcher.Constraint("Horizontal", 7))
sketch8.addConstraint(Sketcher.Constraint("Horizontal", 10))
sketch8.addConstraint(Sketcher.Constraint("Horizontal", 13))
sketch8.addConstraint(Sketcher.Constraint("Horizontal", 16))
sketch8.addConstraint(Sketcher.Constraint("Horizontal", 19))
sketch8.addConstraint(Sketcher.Constraint("Horizontal", 22))
sketch8.addConstraint(Sketcher.Constraint("Symmetric", 3, 2, 12, 2, -1, 1))
sketch8.addConstraint(Sketcher.Constraint("Symmetric", 5, 2, 14, 2, -1, 1))
sketch8.addConstraint(Sketcher.Constraint("Symmetric", 0, 2, 15, 2, -1, 1))
sketch8.addConstraint(Sketcher.Constraint("Symmetric", 2, 2, 17, 2, -1, 1))
sketch8.addConstraint(Sketcher.Constraint("Symmetric", 9, 2, 18, 2, -1, 1))
sketch8.addConstraint(Sketcher.Constraint("Symmetric", 11, 2, 20, 2, -1, 1))
sketch8.addConstraint(Sketcher.Constraint("Symmetric", 6, 2, 21, 2, -1, 1))
sketch8.addConstraint(Sketcher.Constraint("Symmetric", 8, 2, 23, 2, -1, 1))
sketch8.addConstraint(Sketcher.Constraint("Symmetric", 2, 2, 5, 2, -2))
sketch8.addConstraint(Sketcher.Constraint("Symmetric", 7, 2, 18, 2, -2))
sketch8.addConstraint(Sketcher.Constraint("PointOnObject", 8, 2, -1))
sketch8.addConstraint(Sketcher.Constraint("PointOnObject", 11, 2, -1))
sketch8.addConstraint(Sketcher.Constraint("Parallel", 0, 3))
sketch8.addConstraint(Sketcher.Constraint("Parallel", 2, 5))
sketch8.addConstraint(Sketcher.Constraint("Parallel", 3, 6))
sketch8.addConstraint(Sketcher.Constraint("Parallel", 5, 8))
sketch8.addConstraint(Sketcher.Constraint("Parallel", 6, 9))
sketch8.addConstraint(Sketcher.Constraint("Parallel", 8, 11))
sketch8.addConstraint(Sketcher.Constraint("Parallel", 11, 14))
sketch8.addConstraint(Sketcher.Constraint("Parallel", 14, 17))
sketch8.addConstraint(Sketcher.Constraint("Parallel", 17, 20))
sketch8.addConstraint(Sketcher.Constraint("Parallel", 20, 23))
sketch8.addConstraint(Sketcher.Constraint("Vertical", 1, 2, 3, 2))
sketch8.addConstraint(Sketcher.Constraint("Equal", 4, 7))
sketch8.addConstraint(Sketcher.Constraint("Equal", 5, 6))
sketch8.addConstraint(Sketcher.Constraint("DistanceX", 1, 2, 1, 1, 3.0))
sketch8.addConstraint(Sketcher.Constraint("Angle", 0, Q("120 deg")))
sketch8.addConstraint(Sketcher.Constraint("Distance", 0, 3.0))
sketch8.addConstraint(Sketcher.Constraint("DistanceY", -1, 1, 2, 2, 15.65))
sketch8.addConstraint(Sketcher.Constraint("DistanceX", -1, 1, 6, 2, 17.15))
sketch8.setExpression("Constraints[57]", "Params.sketch8_width")
sketch8.setExpression("Constraints[59]", "Params.sketch8_length")
pocket6 = doc.addObject("PartDesign::Pocket", "Pocket005")
body.addObject(pocket6)
pocket6.Profile = sketch8
pocket6.setExpression("Length", "Params.pocket6_length")

doc.recompute()
